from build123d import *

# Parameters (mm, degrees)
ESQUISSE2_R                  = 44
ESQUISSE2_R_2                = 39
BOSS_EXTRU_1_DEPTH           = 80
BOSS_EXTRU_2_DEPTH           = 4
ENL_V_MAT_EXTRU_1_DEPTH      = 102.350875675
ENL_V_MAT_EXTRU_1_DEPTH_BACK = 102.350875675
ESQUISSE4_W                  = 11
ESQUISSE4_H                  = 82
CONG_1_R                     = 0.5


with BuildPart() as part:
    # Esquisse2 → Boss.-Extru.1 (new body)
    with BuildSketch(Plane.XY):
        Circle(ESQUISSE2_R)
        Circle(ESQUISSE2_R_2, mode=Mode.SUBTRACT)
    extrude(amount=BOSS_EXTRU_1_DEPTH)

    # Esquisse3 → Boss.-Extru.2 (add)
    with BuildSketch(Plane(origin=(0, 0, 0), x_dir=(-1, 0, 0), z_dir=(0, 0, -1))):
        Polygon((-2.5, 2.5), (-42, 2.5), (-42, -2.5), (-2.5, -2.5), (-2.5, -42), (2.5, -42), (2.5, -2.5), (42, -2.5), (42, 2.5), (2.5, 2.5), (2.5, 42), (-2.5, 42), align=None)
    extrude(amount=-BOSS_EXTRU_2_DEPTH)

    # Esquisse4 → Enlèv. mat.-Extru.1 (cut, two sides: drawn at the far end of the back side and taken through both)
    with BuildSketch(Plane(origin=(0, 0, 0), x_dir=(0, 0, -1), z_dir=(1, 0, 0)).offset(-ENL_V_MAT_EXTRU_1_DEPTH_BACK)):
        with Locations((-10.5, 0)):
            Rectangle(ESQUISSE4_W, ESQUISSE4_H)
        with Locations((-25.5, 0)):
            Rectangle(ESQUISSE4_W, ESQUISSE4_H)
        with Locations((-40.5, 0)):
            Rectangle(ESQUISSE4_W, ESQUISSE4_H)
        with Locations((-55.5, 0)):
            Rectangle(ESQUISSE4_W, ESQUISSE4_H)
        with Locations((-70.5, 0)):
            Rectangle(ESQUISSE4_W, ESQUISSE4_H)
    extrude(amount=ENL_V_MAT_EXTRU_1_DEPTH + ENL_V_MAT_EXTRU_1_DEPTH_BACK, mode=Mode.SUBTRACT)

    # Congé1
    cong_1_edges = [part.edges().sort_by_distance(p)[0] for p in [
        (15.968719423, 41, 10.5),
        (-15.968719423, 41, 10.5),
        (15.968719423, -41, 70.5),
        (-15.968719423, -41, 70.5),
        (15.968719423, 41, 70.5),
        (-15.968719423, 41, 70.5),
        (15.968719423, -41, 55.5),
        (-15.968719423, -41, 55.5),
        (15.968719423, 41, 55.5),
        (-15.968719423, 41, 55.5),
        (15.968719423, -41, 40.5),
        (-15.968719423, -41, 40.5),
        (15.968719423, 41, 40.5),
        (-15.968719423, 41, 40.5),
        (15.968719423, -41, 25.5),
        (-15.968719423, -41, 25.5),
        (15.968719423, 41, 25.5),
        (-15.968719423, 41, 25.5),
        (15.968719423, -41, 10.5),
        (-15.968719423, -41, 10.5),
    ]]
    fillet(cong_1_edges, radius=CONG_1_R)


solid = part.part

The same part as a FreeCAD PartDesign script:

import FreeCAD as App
import Part
import Sketcher
from FreeCAD import Vector
Q = App.Units.Quantity


def edges_at(feature, points):
    """Names of the edges that pass closest to the given points."""
    edges = feature.Shape.Edges
    near = lambda p: min(range(len(edges)), key=lambda i: edges[i].distToShape(Part.Vertex(*p))[0])
    return sorted({f"Edge{near(p) + 1}" for p in points})


def add_polygon(sketch, points):
    """Adds a closed chain of lines whose ends are joined by coincident constraints."""
    first, n = sketch.GeometryCount, len(points)
    for a, b in zip(points, points[1:] + points[:1]):
        sketch.addGeometry(Part.LineSegment(App.Vector(*a, 0), App.Vector(*b, 0)), False)
    for i in range(n):
        sketch.addConstraint(Sketcher.Constraint("Coincident", first + i, 2, first + (i + 1) % n, 1))

doc = App.newDocument("Part")
body = doc.addObject("PartDesign::Body", "Body")

sketch1 = body.newObject("Sketcher::SketchObject", "Sketch")
sketch1.AttachmentSupport = (doc.getObject("XY_Plane"), [""])
sketch1.MapMode = "FlatFace"
sketch1.addGeometry([
    Part.Circle(Vector(0, 0, 0), Vector(0, 0, 1), 44),
    Part.Circle(Vector(0, 0, 0), Vector(0, 0, 1), 39),
], False)
sketch1.addConstraint([
    Sketcher.Constraint("Coincident", 0, 3, -1, 1),
    Sketcher.Constraint("Coincident", 1, 3, -1, 1),
    Sketcher.Constraint("Diameter", 0, Q("88 mm")),
    Sketcher.Constraint("Diameter", 1, Q("78 mm")),
])
pad1 = body.newObject("PartDesign::Pad", "Pad")
pad1.Profile = sketch1
pad1.Length = 80

sketch2 = body.newObject("Sketcher::SketchObject", "Sketch001")
sketch2.AttachmentSupport = (doc.getObject("XY_Plane"), [""])
sketch2.MapMode = "FlatFace"
add_polygon(sketch2, [(2.5, 2.5), (42, 2.5), (42, -2.5), (2.5, -2.5), (2.5, -42), (-2.5, -42), (-2.5, -2.5), (-42, -2.5), (-42, 2.5), (-2.5, 2.5), (-2.5, 42), (2.5, 42)])
sketch2.addConstraint([
    Sketcher.Constraint("Horizontal", 0),
    Sketcher.Constraint("Vertical", 1),
    Sketcher.Constraint("Horizontal", 2),
    Sketcher.Constraint("Vertical", 3),
    Sketcher.Constraint("Horizontal", 4),
    Sketcher.Constraint("Vertical", 5),
    Sketcher.Constraint("Horizontal", 6),
    Sketcher.Constraint("Vertical", 7),
    Sketcher.Constraint("Horizontal", 8),
    Sketcher.Constraint("Vertical", 9),
    Sketcher.Constraint("Horizontal", 10),
    Sketcher.Constraint("Vertical", 11),
    Sketcher.Constraint("Symmetric", 0, 2, 6, 2, -1, 1),
    Sketcher.Constraint("Symmetric", 2, 2, 8, 2, -1, 1),
    Sketcher.Constraint("Symmetric", 4, 2, 10, 2, -1, 1),
    Sketcher.Constraint("Symmetric", 2, 2, 5, 2, -2),
    Sketcher.Constraint("Equal", 10, 1),
    Sketcher.Constraint("Equal", 8, 3),
    Sketcher.Constraint("DistanceX", 4, 2, 4, 1, Q("5 mm")),
    Sketcher.Constraint("DistanceX", 0, 1, 0, 2, Q("39.5 mm")),
])
pad2 = body.newObject("PartDesign::Pad", "Pad001")
pad2.Profile = sketch2
pad2.Length = 4

sketch3 = body.newObject("Sketcher::SketchObject", "Sketch002")
sketch3.AttachmentSupport = (doc.getObject("YZ_Plane"), [""])
sketch3.MapMode = "FlatFace"
add_polygon(sketch3, [(41, 16), (-41, 16), (-41, 5), (41, 5)])
add_polygon(sketch3, [(41, 31), (-41, 31), (-41, 20), (41, 20)])
add_polygon(sketch3, [(41, 46), (-41, 46), (-41, 35), (41, 35)])
add_polygon(sketch3, [(41, 61), (-41, 61), (-41, 50), (41, 50)])
add_polygon(sketch3, [(41, 76), (-41, 76), (-41, 65), (41, 65)])
sketch3.addConstraint([
    Sketcher.Constraint("Horizontal", 0),
    Sketcher.Constraint("Vertical", 1),
    Sketcher.Constraint("Horizontal", 2),
    Sketcher.Constraint("Vertical", 3),
    Sketcher.Constraint("Horizontal", 4),
    Sketcher.Constraint("Vertical", 5),
    Sketcher.Constraint("Horizontal", 6),
    Sketcher.Constraint("Vertical", 7),
    Sketcher.Constraint("Horizontal", 8),
    Sketcher.Constraint("Vertical", 9),
    Sketcher.Constraint("Horizontal", 10),
    Sketcher.Constraint("Vertical", 11),
    Sketcher.Constraint("Horizontal", 12),
    Sketcher.Constraint("Vertical", 13),
    Sketcher.Constraint("Horizontal", 14),
    Sketcher.Constraint("Vertical", 15),
    Sketcher.Constraint("Horizontal", 16),
    Sketcher.Constraint("Vertical", 17),
    Sketcher.Constraint("Horizontal", 18),
    Sketcher.Constraint("Vertical", 19),
    Sketcher.Constraint("Vertical", 1, 2, 4, 2),
    Sketcher.Constraint("Vertical", 3, 2, 6, 2),
    Sketcher.Constraint("Vertical", 5, 2, 8, 2),
    Sketcher.Constraint("Vertical", 7, 2, 10, 2),
    Sketcher.Constraint("Vertical", 9, 2, 12, 2),
    Sketcher.Constraint("Vertical", 11, 2, 14, 2),
    Sketcher.Constraint("Vertical", 13, 2, 16, 2),
    Sketcher.Constraint("Vertical", 15, 2, 18, 2),
    Sketcher.Constraint("Equal", 3, 5),
    Sketcher.Constraint("Equal", 7, 9),
    Sketcher.Constraint("Equal", 11, 13),
    Sketcher.Constraint("Equal", 15, 17),
    Sketcher.Constraint("DistanceX", 0, 2, 0, 1, Q("82 mm")),
    Sketcher.Constraint("DistanceY", 1, 2, 1, 1, Q("11 mm")),
    Sketcher.Constraint("DistanceX", 0, 2, -1, 1, Q("41 mm")),
    Sketcher.Constraint("DistanceY", -1, 1, 0, 2, Q("16 mm")),
    Sketcher.Constraint("DistanceY", -1, 1, 4, 2, Q("31 mm")),
    Sketcher.Constraint("DistanceY", -1, 1, 8, 2, Q("46 mm")),
    Sketcher.Constraint("DistanceY", -1, 1, 12, 2, Q("61 mm")),
    Sketcher.Constraint("DistanceY", -1, 1, 16, 2, Q("76 mm")),
])
pocket1 = body.newObject("PartDesign::Pocket", "Pocket")
pocket1.Profile = sketch3
pocket1.Type = "ThroughAll"
pocket1.Midplane = True
doc.recompute()

fillet = body.newObject("PartDesign::Fillet", "Fillet")
fillet.Base = (pocket1, edges_at(pocket1, [
    (15.969, 41, 10.5),
    (-15.969, 41, 10.5),
    (15.969, -41, 70.5),
    (-15.969, -41, 70.5),
    (15.969, 41, 70.5),
    (-15.969, 41, 70.5),
    (15.969, -41, 55.5),
    (-15.969, -41, 55.5),
    (15.969, 41, 55.5),
    (-15.969, 41, 55.5),
    (15.969, -41, 40.5),
    (-15.969, -41, 40.5),
    (15.969, 41, 40.5),
    (-15.969, 41, 40.5),
    (15.969, -41, 25.5),
    (-15.969, -41, 25.5),
    (15.969, 41, 25.5),
    (-15.969, 41, 25.5),
    (15.969, -41, 10.5),
    (-15.969, -41, 10.5),
]))
fillet.Radius = 0.5

doc.recompute()
